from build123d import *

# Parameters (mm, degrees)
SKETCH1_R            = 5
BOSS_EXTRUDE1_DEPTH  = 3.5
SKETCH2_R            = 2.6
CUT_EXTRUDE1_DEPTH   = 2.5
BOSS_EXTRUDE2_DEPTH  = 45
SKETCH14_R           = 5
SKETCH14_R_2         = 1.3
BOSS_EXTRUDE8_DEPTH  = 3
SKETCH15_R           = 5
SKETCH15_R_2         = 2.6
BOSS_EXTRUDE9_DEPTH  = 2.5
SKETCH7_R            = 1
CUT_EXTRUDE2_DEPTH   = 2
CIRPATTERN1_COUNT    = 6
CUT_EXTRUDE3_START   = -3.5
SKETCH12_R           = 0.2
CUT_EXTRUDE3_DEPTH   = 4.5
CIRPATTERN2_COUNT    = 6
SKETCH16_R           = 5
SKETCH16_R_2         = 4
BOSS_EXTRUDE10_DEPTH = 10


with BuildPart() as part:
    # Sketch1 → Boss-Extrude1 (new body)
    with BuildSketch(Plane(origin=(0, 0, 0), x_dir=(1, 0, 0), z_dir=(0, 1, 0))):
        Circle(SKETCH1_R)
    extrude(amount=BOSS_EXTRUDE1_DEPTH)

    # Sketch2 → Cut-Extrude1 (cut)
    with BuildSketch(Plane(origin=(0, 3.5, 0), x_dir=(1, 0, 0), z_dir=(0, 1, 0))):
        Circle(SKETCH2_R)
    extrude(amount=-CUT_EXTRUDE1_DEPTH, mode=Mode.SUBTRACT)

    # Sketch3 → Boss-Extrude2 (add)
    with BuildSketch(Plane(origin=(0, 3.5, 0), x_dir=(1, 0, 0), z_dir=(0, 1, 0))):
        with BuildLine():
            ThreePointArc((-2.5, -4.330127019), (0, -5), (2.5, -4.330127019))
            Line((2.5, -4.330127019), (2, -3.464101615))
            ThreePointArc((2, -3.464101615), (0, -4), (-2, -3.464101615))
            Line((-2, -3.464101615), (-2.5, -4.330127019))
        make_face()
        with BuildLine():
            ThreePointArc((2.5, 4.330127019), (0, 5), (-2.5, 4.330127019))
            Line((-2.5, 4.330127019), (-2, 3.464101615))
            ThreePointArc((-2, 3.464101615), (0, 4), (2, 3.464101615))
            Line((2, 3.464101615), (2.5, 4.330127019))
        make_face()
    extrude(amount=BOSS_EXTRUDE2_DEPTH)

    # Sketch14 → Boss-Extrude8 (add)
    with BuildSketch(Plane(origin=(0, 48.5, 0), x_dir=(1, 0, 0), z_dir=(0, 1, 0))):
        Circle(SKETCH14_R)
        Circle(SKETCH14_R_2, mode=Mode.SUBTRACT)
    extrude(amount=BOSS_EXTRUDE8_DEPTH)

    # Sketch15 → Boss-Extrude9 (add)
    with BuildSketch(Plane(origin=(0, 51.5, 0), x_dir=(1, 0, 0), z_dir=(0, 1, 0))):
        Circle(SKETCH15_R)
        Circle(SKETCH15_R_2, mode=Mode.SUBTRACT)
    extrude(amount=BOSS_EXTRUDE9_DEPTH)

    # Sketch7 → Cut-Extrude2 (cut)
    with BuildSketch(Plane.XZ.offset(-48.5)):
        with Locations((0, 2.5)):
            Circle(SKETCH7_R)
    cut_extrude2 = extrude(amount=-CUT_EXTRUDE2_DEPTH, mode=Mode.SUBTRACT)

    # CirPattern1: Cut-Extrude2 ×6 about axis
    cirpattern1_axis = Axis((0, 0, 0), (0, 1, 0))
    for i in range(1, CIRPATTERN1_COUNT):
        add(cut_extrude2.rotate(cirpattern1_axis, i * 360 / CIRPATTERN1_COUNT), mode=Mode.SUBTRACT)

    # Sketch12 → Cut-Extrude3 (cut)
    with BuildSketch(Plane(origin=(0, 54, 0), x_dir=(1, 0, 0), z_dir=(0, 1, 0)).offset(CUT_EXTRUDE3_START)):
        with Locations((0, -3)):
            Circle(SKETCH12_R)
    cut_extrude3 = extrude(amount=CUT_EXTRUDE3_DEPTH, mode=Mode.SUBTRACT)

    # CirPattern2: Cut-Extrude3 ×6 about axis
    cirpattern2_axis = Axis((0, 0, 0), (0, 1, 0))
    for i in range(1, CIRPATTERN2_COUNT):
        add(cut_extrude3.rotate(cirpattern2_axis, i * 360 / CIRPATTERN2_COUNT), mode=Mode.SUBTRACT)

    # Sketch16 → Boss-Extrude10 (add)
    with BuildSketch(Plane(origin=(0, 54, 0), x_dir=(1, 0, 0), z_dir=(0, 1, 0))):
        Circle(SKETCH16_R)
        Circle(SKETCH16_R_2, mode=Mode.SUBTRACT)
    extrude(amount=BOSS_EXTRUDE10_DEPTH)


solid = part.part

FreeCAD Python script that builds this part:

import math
import FreeCAD as App
import Part
import Sketcher

V = App.Vector
Q = App.Units.Quantity

doc = App.newDocument("Part")
params = doc.addObject("Spreadsheet::Sheet", "Params")
for row, (alias, value) in enumerate([
    ("sketch1_diameter", "10 mm"),
    ("pad1_length", "3.5 mm"),
    ("sketch2_diameter", "5.2 mm"),
    ("pocket1_length", "2.5 mm"),
    ("sketch3_radius", "5 mm"),
    ("sketch3_radius2", "4 mm"),
    ("pad2_length", "45 mm"),
    ("sketch4_diameter", "10 mm"),
    ("sketch4_diameter2", "2.6 mm"),
    ("pad3_length", "3 mm"),
    ("sketch5_diameter", "10 mm"),
    ("sketch5_diameter2", "5.2 mm"),
    ("pad4_length", "2.5 mm"),
    ("sketch6_diameter", "2 mm"),
    ("pocket2_length", "2 mm"),
    ("sketch7_diameter", "0.4 mm"),
    ("pocket3_length", "4.5 mm"),
    ("sketch8_diameter", "10 mm"),
    ("sketch8_diameter2", "8 mm"),
    ("pad5_length", "10 mm"),
], start=1):
    params.set(f"A{row}", alias)
    params.set(f"B{row}", "=" + value)
    params.setAlias(f"B{row}", alias)

body = doc.addObject("PartDesign::Body", "Body")

sketch1 = doc.addObject("Sketcher::SketchObject", "Sketch")
body.addObject(sketch1)
sketch1.AttachmentSupport = (doc.XZ_Plane, [""])
sketch1.MapMode = "FlatFace"
sketch1.addGeometry(Part.Circle(V(0, 0, 0), V(0, 0, 1), 5), False)
sketch1.addConstraint(Sketcher.Constraint("Coincident", 0, 3, -1, 1))
sketch1.addConstraint(Sketcher.Constraint("Diameter", 0, Q("10 mm")))
sketch1.setExpression("Constraints[1]", "Params.sketch1_diameter")
pad1 = doc.addObject("PartDesign::Pad", "Pad")
body.addObject(pad1)
pad1.Profile = sketch1
pad1.setExpression("Length", "Params.pad1_length")
pad1.Reversed = True

sketch2 = doc.addObject("Sketcher::SketchObject", "Sketch001")
body.addObject(sketch2)
sketch2.AttachmentSupport = (doc.XZ_Plane, [""])
sketch2.MapMode = "FlatFace"
sketch2.AttachmentOffset = App.Placement(V(0, 0, -3.5), App.Rotation())
sketch2.addGeometry(Part.Circle(V(0, 0, 0), V(0, 0, 1), 2.6), False)
sketch2.addConstraint(Sketcher.Constraint("Coincident", 0, 3, -1, 1))
sketch2.addConstraint(Sketcher.Constraint("Diameter", 0, Q("5.2 mm")))
sketch2.setExpression("Constraints[1]", "Params.sketch2_diameter")
pocket1 = doc.addObject("PartDesign::Pocket", "Pocket")
body.addObject(pocket1)
pocket1.Profile = sketch2
pocket1.setExpression("Length", "Params.pocket1_length")
pocket1.Reversed = True

sketch3 = doc.addObject("Sketcher::SketchObject", "Sketch002")
body.addObject(sketch3)
sketch3.AttachmentSupport = (doc.XZ_Plane, [""])
sketch3.MapMode = "FlatFace"
sketch3.AttachmentOffset = App.Placement(V(0, 0, -3.5), App.Rotation())
sketch3.addGeometry(Part.ArcOfCircle(Part.Circle(V(0, 0, 0), V(0, 0, 1), 5), math.radians(60), math.radians(120)), False)
sketch3.addGeometry(Part.LineSegment(V(2.5, 4.330127, 0), V(2, 3.464102, 0)), False)
sketch3.addGeometry(Part.ArcOfCircle(Part.Circle(V(0, 0, 0), V(0, 0, 1), 4), math.radians(60), math.radians(120)), False)
sketch3.addGeometry(Part.LineSegment(V(-2, 3.464102, 0), V(-2.5, 4.330127, 0)), False)
sketch3.addGeometry(Part.ArcOfCircle(Part.Circle(V(0, 0, 0), V(0, 0, 1), 5), math.radians(-120), math.radians(-60)), False)
sketch3.addGeometry(Part.LineSegment(V(-2.5, -4.330127, 0), V(-2, -3.464102, 0)), False)
sketch3.addGeometry(Part.ArcOfCircle(Part.Circle(V(0, 0, 0), V(0, 0, 1), 4), math.radians(-120), math.radians(-60)), False)
sketch3.addGeometry(Part.LineSegment(V(2, -3.464102, 0), V(2.5, -4.330127, 0)), False)
sketch3.addConstraint(Sketcher.Constraint("Coincident", 0, 1, 1, 1))
sketch3.addConstraint(Sketcher.Constraint("Coincident", 1, 2, 2, 1))
sketch3.addConstraint(Sketcher.Constraint("Coincident", 2, 2, 3, 1))
sketch3.addConstraint(Sketcher.Constraint("Coincident", 3, 2, 0, 2))
sketch3.addConstraint(Sketcher.Constraint("Coincident", 4, 1, 5, 1))
sketch3.addConstraint(Sketcher.Constraint("Coincident", 5, 2, 6, 1))
sketch3.addConstraint(Sketcher.Constraint("Coincident", 6, 2, 7, 1))
sketch3.addConstraint(Sketcher.Constraint("Coincident", 7, 2, 4, 2))
sketch3.addConstraint(Sketcher.Constraint("Coincident", 0, 3, -1, 1))
sketch3.addConstraint(Sketcher.Constraint("Coincident", 2, 3, -1, 1))
sketch3.addConstraint(Sketcher.Constraint("Coincident", 4, 3, -1, 1))
sketch3.addConstraint(Sketcher.Constraint("Coincident", 6, 3, -1, 1))
sketch3.addConstraint(Sketcher.Constraint("Equal", 0, 4))
sketch3.addConstraint(Sketcher.Constraint("Equal", 2, 6))
sketch3.addConstraint(Sketcher.Constraint("Parallel", 1, 5))
sketch3.addConstraint(Sketcher.Constraint("Parallel", 3, 7))
sketch3.addConstraint(Sketcher.Constraint("Horizontal", 1, 2, 2, 2))
sketch3.addConstraint(Sketcher.Constraint("Horizontal", 0, 1, 3, 2))
sketch3.addConstraint(Sketcher.Constraint("Horizontal", 5, 2, 6, 2))
sketch3.addConstraint(Sketcher.Constraint("Vertical", 3, 2, 4, 1))
sketch3.addConstraint(Sketcher.Constraint("Radius", 0, Q("5 mm")))
sketch3.addConstraint(Sketcher.Constraint("Radius", 2, Q("4 mm")))
sketch3.addConstraint(Sketcher.Constraint("Angle", 1, Q("-120 deg")))
sketch3.addConstraint(Sketcher.Constraint("DistanceX", -1, 1, 1, 2, Q("2 mm")))
sketch3.setExpression("Constraints[20]", "Params.sketch3_radius")
sketch3.setExpression("Constraints[21]", "Params.sketch3_radius2")
pad2 = doc.addObject("PartDesign::Pad", "Pad001")
body.addObject(pad2)
pad2.Profile = sketch3
pad2.setExpression("Length", "Params.pad2_length")
pad2.Reversed = True

sketch4 = doc.addObject("Sketcher::SketchObject", "Sketch003")
body.addObject(sketch4)
sketch4.AttachmentSupport = (doc.XZ_Plane, [""])
sketch4.MapMode = "FlatFace"
sketch4.AttachmentOffset = App.Placement(V(0, 0, -48.5), App.Rotation())
sketch4.addGeometry(Part.Circle(V(0, 0, 0), V(0, 0, 1), 5), False)
sketch4.addGeometry(Part.Circle(V(0, 0, 0), V(0, 0, 1), 1.3), False)
sketch4.addConstraint(Sketcher.Constraint("Coincident", 0, 3, -1, 1))
sketch4.addConstraint(Sketcher.Constraint("Coincident", 1, 3, -1, 1))
sketch4.addConstraint(Sketcher.Constraint("Diameter", 0, Q("10 mm")))
sketch4.addConstraint(Sketcher.Constraint("Diameter", 1, Q("2.6 mm")))
sketch4.setExpression("Constraints[2]", "Params.sketch4_diameter")
sketch4.setExpression("Constraints[3]", "Params.sketch4_diameter2")
pad3 = doc.addObject("PartDesign::Pad", "Pad002")
body.addObject(pad3)
pad3.Profile = sketch4
pad3.setExpression("Length", "Params.pad3_length")
pad3.Reversed = True

sketch5 = doc.addObject("Sketcher::SketchObject", "Sketch004")
body.addObject(sketch5)
sketch5.AttachmentSupport = (doc.XZ_Plane, [""])
sketch5.MapMode = "FlatFace"
sketch5.AttachmentOffset = App.Placement(V(0, 0, -51.5), App.Rotation())
sketch5.addGeometry(Part.Circle(V(0, 0, 0), V(0, 0, 1), 5), False)
sketch5.addGeometry(Part.Circle(V(0, 0, 0), V(0, 0, 1), 2.6), False)
sketch5.addConstraint(Sketcher.Constraint("Coincident", 0, 3, -1, 1))
sketch5.addConstraint(Sketcher.Constraint("Coincident", 1, 3, -1, 1))
sketch5.addConstraint(Sketcher.Constraint("Diameter", 0, Q("10 mm")))
sketch5.addConstraint(Sketcher.Constraint("Diameter", 1, Q("5.2 mm")))
sketch5.setExpression("Constraints[2]", "Params.sketch5_diameter")
sketch5.setExpression("Constraints[3]", "Params.sketch5_diameter2")
pad4 = doc.addObject("PartDesign::Pad", "Pad003")
body.addObject(pad4)
pad4.Profile = sketch5
pad4.setExpression("Length", "Params.pad4_length")
pad4.Reversed = True

sketch6 = doc.addObject("Sketcher::SketchObject", "Sketch005")
body.addObject(sketch6)
sketch6.AttachmentSupport = (doc.XZ_Plane, [""])
sketch6.MapMode = "FlatFace"
sketch6.AttachmentOffset = App.Placement(V(0, 0, -48.5), App.Rotation())
sketch6.addGeometry(Part.Circle(V(0, 2.5, 0), V(0, 0, 1), 1), False)
sketch6.addConstraint(Sketcher.Constraint("PointOnObject", 0, 3, -2))
sketch6.addConstraint(Sketcher.Constraint("Diameter", 0, Q("2 mm")))
sketch6.addConstraint(Sketcher.Constraint("DistanceY", -1, 1, 0, 3, Q("2.5 mm")))
sketch6.setExpression("Constraints[1]", "Params.sketch6_diameter")
pocket2 = doc.addObject("PartDesign::Pocket", "Pocket001")
body.addObject(pocket2)
pocket2.Profile = sketch6
pocket2.setExpression("Length", "Params.pocket2_length")
doc.recompute()

polarpattern = doc.addObject("PartDesign::PolarPattern", "PolarPattern")
body.addObject(polarpattern)
polarpattern.Originals = [pocket2]
polarpattern.Axis = (doc.Y_Axis, [""])
polarpattern.Angle = 360
polarpattern.Occurrences = 6
body.Tip = polarpattern

sketch7 = doc.addObject("Sketcher::SketchObject", "Sketch006")
body.addObject(sketch7)
sketch7.AttachmentSupport = (doc.XZ_Plane, [""])
sketch7.MapMode = "FlatFace"
sketch7.AttachmentOffset = App.Placement(V(0, 0, -50.5), App.Rotation())
sketch7.addGeometry(Part.Circle(V(0, 3, 0), V(0, 0, 1), 0.2), False)
sketch7.addConstraint(Sketcher.Constraint("PointOnObject", 0, 3, -2))
sketch7.addConstraint(Sketcher.Constraint("Diameter", 0, Q("0.4 mm")))
sketch7.addConstraint(Sketcher.Constraint("DistanceY", -1, 1, 0, 3, Q("3 mm")))
sketch7.setExpression("Constraints[1]", "Params.sketch7_diameter")
pocket3 = doc.addObject("PartDesign::Pocket", "Pocket002")
body.addObject(pocket3)
pocket3.Profile = sketch7
pocket3.setExpression("Length", "Params.pocket3_length")
doc.recompute()

polarpattern2 = doc.addObject("PartDesign::PolarPattern", "PolarPattern001")
body.addObject(polarpattern2)
polarpattern2.Originals = [pocket3]
polarpattern2.Axis = (doc.Y_Axis, [""])
polarpattern2.Angle = 360
polarpattern2.Occurrences = 6
body.Tip = polarpattern2

sketch8 = doc.addObject("Sketcher::SketchObject", "Sketch007")
body.addObject(sketch8)
sketch8.AttachmentSupport = (doc.XZ_Plane, [""])
sketch8.MapMode = "FlatFace"
sketch8.AttachmentOffset = App.Placement(V(0, 0, -54), App.Rotation())
sketch8.addGeometry(Part.Circle(V(0, 0, 0), V(0, 0, 1), 5), False)
sketch8.addGeometry(Part.Circle(V(0, 0, 0), V(0, 0, 1), 4), False)
sketch8.addConstraint(Sketcher.Constraint("Coincident", 0, 3, -1, 1))
sketch8.addConstraint(Sketcher.Constraint("Coincident", 1, 3, -1, 1))
sketch8.addConstraint(Sketcher.Constraint("Diameter", 0, Q("10 mm")))
sketch8.addConstraint(Sketcher.Constraint("Diameter", 1, Q("8 mm")))
sketch8.setExpression("Constraints[2]", "Params.sketch8_diameter")
sketch8.setExpression("Constraints[3]", "Params.sketch8_diameter2")
pad5 = doc.addObject("PartDesign::Pad", "Pad004")
body.addObject(pad5)
pad5.Profile = sketch8
pad5.setExpression("Length", "Params.pad5_length")
pad5.Reversed = True

doc.recompute()
